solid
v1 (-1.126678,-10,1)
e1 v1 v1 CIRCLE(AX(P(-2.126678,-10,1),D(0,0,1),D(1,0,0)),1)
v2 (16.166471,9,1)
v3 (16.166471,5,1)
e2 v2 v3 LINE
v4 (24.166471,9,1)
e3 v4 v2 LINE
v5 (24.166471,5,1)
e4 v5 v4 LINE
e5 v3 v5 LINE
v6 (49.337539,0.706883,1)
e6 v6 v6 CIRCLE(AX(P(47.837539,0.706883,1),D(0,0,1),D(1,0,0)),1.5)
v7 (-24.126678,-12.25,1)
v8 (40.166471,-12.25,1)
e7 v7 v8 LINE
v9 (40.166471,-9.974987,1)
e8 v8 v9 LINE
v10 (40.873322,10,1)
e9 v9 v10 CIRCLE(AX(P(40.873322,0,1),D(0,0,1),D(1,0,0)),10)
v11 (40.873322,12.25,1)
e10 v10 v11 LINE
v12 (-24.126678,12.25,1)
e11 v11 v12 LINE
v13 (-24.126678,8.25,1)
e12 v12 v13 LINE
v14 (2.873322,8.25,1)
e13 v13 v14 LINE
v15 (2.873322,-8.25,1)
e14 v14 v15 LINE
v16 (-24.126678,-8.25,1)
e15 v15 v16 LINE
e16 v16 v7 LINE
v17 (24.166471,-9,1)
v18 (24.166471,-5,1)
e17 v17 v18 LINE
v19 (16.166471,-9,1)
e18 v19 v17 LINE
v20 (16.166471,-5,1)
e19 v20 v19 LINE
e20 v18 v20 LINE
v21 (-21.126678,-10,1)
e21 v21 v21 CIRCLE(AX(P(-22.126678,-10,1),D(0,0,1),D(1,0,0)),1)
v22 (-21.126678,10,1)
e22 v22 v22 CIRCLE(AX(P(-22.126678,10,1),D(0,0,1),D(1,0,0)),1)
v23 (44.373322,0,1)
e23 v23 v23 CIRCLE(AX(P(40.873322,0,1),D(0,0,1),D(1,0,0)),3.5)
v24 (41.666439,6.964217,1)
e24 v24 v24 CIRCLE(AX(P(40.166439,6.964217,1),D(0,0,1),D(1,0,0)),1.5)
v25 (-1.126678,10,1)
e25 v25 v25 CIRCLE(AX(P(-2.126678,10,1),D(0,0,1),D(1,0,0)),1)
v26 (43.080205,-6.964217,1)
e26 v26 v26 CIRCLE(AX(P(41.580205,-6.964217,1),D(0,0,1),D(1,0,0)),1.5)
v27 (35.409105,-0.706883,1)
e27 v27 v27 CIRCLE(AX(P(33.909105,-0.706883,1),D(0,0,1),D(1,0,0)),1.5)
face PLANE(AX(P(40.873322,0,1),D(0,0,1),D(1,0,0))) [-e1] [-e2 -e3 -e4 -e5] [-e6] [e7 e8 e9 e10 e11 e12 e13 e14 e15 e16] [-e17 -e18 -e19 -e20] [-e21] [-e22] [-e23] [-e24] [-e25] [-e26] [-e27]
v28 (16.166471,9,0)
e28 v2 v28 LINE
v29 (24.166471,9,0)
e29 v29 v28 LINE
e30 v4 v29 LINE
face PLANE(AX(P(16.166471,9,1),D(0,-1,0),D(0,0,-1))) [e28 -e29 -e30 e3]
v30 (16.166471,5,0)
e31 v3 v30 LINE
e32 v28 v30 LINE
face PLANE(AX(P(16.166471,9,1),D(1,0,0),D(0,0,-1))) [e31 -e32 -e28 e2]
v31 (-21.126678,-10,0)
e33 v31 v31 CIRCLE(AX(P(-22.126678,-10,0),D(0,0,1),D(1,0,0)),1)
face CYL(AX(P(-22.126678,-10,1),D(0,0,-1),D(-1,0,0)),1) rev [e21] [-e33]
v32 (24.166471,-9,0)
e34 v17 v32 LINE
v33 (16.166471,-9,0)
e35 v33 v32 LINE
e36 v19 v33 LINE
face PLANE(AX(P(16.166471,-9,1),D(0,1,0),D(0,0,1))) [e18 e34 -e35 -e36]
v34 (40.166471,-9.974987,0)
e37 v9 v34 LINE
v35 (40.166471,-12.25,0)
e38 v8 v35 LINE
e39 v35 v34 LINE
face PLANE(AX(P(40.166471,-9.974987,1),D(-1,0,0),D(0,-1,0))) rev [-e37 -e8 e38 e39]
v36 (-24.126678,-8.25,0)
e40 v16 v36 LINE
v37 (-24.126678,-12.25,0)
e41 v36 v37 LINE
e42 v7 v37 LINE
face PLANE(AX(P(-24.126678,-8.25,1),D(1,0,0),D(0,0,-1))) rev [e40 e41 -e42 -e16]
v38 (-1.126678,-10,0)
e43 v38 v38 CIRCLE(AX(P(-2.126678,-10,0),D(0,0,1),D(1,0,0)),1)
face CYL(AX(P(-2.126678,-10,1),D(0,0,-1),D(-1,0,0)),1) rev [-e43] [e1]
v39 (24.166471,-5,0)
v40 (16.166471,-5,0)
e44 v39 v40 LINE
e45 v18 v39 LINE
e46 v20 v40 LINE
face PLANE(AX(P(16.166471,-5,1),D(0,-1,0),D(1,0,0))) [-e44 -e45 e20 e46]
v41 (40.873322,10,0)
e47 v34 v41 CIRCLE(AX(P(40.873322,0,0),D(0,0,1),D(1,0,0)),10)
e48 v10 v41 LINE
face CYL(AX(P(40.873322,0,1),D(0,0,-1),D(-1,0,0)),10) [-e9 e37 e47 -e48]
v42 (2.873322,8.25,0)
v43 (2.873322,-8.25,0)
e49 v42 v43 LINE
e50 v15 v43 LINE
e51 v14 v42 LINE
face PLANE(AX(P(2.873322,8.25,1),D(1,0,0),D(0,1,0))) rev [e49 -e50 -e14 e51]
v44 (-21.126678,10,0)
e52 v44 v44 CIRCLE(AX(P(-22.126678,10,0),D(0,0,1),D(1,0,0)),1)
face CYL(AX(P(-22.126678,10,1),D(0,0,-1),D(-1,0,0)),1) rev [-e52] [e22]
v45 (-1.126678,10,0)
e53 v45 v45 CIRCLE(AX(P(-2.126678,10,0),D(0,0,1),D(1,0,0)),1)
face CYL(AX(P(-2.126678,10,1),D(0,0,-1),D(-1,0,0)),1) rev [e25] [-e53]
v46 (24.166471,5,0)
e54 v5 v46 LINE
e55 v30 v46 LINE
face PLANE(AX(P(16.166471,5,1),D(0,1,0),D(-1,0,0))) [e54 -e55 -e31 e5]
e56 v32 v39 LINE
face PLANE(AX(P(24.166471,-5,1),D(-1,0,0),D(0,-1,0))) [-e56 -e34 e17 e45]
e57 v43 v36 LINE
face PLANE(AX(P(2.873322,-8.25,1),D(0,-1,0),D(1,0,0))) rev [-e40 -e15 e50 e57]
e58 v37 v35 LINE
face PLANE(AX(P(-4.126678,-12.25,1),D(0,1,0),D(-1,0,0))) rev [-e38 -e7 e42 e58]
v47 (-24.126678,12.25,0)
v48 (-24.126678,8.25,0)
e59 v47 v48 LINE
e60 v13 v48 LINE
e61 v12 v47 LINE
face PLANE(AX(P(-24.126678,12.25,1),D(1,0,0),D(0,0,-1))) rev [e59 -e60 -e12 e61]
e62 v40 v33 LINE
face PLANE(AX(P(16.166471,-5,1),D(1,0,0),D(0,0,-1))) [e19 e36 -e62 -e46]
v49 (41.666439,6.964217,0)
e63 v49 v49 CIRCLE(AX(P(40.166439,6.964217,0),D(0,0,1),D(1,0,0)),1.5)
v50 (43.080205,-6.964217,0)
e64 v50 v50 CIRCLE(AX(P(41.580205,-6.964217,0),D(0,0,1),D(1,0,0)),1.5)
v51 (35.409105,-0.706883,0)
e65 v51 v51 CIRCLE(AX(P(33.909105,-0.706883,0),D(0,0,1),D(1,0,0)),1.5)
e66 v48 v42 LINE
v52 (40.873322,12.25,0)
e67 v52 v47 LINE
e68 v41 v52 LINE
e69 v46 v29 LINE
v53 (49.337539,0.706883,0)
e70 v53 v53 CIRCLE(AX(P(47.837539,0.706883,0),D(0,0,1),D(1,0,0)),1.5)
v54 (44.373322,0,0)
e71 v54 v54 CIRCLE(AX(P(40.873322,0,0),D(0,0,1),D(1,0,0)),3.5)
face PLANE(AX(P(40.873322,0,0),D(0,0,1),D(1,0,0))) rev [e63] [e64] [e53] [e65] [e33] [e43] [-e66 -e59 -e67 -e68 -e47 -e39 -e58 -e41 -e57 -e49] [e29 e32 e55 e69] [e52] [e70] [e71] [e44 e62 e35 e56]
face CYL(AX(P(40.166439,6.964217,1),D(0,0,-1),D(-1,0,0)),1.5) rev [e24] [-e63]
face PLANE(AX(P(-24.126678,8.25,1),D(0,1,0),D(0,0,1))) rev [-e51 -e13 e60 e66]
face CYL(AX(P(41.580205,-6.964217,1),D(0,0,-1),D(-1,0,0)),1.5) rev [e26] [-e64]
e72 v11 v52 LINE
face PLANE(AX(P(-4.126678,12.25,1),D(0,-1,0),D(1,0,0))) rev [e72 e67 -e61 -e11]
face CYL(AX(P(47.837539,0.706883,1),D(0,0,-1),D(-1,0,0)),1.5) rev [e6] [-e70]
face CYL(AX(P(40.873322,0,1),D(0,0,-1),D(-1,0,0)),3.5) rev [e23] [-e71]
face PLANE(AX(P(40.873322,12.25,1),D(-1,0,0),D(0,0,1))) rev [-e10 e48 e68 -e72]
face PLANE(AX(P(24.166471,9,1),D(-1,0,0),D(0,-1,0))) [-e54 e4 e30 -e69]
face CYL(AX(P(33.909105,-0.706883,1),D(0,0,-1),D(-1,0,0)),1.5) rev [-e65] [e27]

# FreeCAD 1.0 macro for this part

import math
import FreeCAD as App
import Part
import Sketcher

V = App.Vector

doc = App.newDocument("Part")
body = doc.addObject("PartDesign::Body", "Body")

sketch1 = body.newObject("Sketcher::SketchObject", "Sketch")
sketch1.AttachmentSupport = (doc.getObject("XY_Plane"), [""])
sketch1.MapMode = "FlatFace"
sketch1.addGeometry([
    Part.LineSegment(V(40.873322, 10, 0), V(40.873322, 12.25, 0)),
    Part.LineSegment(V(40.873322, 12.25, 0), V(-24.126678, 12.25, 0)),
    Part.LineSegment(V(-24.126678, 12.25, 0), V(-24.126678, 8.25, 0)),
    Part.LineSegment(V(-24.126678, 8.25, 0), V(2.873322, 8.25, 0)),
    Part.LineSegment(V(2.873322, 8.25, 0), V(2.873322, -8.25, 0)),
    Part.LineSegment(V(2.873322, -8.25, 0), V(-24.126678, -8.25, 0)),
    Part.LineSegment(V(-24.126678, -8.25, 0), V(-24.126678, -12.25, 0)),
    Part.LineSegment(V(-24.126678, -12.25, 0), V(40.166471, -12.25, 0)),
    Part.LineSegment(V(40.166471, -12.25, 0), V(40.166471, -9.974987, 0)),
    Part.ArcOfCircle(Part.Circle(V(40.873322, 0, 0), V(0, 0, 1), 10), math.radians(-94.053337), math.radians(90)),
    Part.Circle(V(41.580205, -6.964217, 0), V(0, 0, 1), 1.5),
    Part.LineSegment(V(16.166471, -9, 0), V(16.166471, -5, 0)),
    Part.LineSegment(V(16.166471, -5, 0), V(24.166471, -5, 0)),
    Part.LineSegment(V(24.166471, -5, 0), V(24.166471, -9, 0)),
    Part.LineSegment(V(24.166471, -9, 0), V(16.166471, -9, 0)),
    Part.Circle(V(33.909105, -0.706883, 0), V(0, 0, 1), 1.5),
    Part.Circle(V(-2.126678, -10, 0), V(0, 0, 1), 1),
    Part.Circle(V(-22.126678, -10, 0), V(0, 0, 1), 1),
    Part.Circle(V(47.837539, 0.706883, 0), V(0, 0, 1), 1.5),
    Part.Circle(V(40.873322, 0, 0), V(0, 0, 1), 3.5),
    Part.Circle(V(40.166439, 6.964217, 0), V(0, 0, 1), 1.5),
    Part.LineSegment(V(16.166471, 5, 0), V(16.166471, 9, 0)),
    Part.LineSegment(V(16.166471, 9, 0), V(24.166471, 9, 0)),
    Part.LineSegment(V(24.166471, 9, 0), V(24.166471, 5, 0)),
    Part.LineSegment(V(24.166471, 5, 0), V(16.166471, 5, 0)),
    Part.Circle(V(-2.126678, 10, 0), V(0, 0, 1), 1),
    Part.Circle(V(-22.126678, 10, 0), V(0, 0, 1), 1),
], False)
sketch1.addConstraint([
    Sketcher.Constraint("Coincident", 0, 2, 1, 1),
    Sketcher.Constraint("Coincident", 1, 2, 2, 1),
    Sketcher.Constraint("Coincident", 2, 2, 3, 1),
    Sketcher.Constraint("Coincident", 3, 2, 4, 1),
    Sketcher.Constraint("Coincident", 4, 2, 5, 1),
    Sketcher.Constraint("Coincident", 5, 2, 6, 1),
    Sketcher.Constraint("Coincident", 6, 2, 7, 1),
    Sketcher.Constraint("Coincident", 7, 2, 8, 1),
    Sketcher.Constraint("Coincident", 8, 2, 9, 1),
    Sketcher.Constraint("Coincident", 9, 2, 0, 1),
    Sketcher.Constraint("Coincident", 11, 2, 12, 1),
    Sketcher.Constraint("Coincident", 12, 2, 13, 1),
    Sketcher.Constraint("Coincident", 13, 2, 14, 1),
    Sketcher.Constraint("Coincident", 14, 2, 11, 1),
    Sketcher.Constraint("Coincident", 21, 2, 22, 1),
    Sketcher.Constraint("Coincident", 22, 2, 23, 1),
    Sketcher.Constraint("Coincident", 23, 2, 24, 1),
    Sketcher.Constraint("Coincident", 24, 2, 21, 1),
    Sketcher.Constraint("Vertical", 0),
    Sketcher.Constraint("Horizontal", 1),
    Sketcher.Constraint("Vertical", 2),
    Sketcher.Constraint("Horizontal", 3),
    Sketcher.Constraint("Vertical", 4),
    Sketcher.Constraint("Horizontal", 5),
    Sketcher.Constraint("Vertical", 6),
    Sketcher.Constraint("Horizontal", 7),
    Sketcher.Constraint("Vertical", 8),
    Sketcher.Constraint("Vertical", 11),
    Sketcher.Constraint("Horizontal", 12),
    Sketcher.Constraint("Vertical", 13),
    Sketcher.Constraint("Horizontal", 14),
    Sketcher.Constraint("Vertical", 21),
    Sketcher.Constraint("Horizontal", 22),
    Sketcher.Constraint("Vertical", 23),
    Sketcher.Constraint("Horizontal", 24),
    Sketcher.Constraint("Coincident", 19, 3, 9, 3),
    Sketcher.Constraint("Equal", 10, 15),
    Sketcher.Constraint("Equal", 16, 17),
    Sketcher.Constraint("Equal", 15, 18),
    Sketcher.Constraint("Equal", 18, 20),
    Sketcher.Constraint("Equal", 17, 25),
    Sketcher.Constraint("Equal", 25, 26),
    Sketcher.Constraint("Symmetric", 16, 3, 25, 3, -1),
    Sketcher.Constraint("Symmetric", 17, 3, 26, 3, -1),
    Sketcher.Constraint("Symmetric", 2, 2, 5, 2, -1),
    Sketcher.Constraint("Symmetric", 14, 2, 21, 2, -1),
    Sketcher.Constraint("Symmetric", 12, 2, 23, 2, -1),
    Sketcher.Constraint("PointOnObject", 9, 3, -1),
    Sketcher.Constraint("Horizontal", 16, 3, 17, 3),
    Sketcher.Constraint("Horizontal", 26, 3, 9, 2),
    Sketcher.Constraint("Vertical", 19, 3, 0, 2),
    Sketcher.Constraint("Equal", 2, 6),
    Sketcher.Constraint("Equal", 6, 11),
    Sketcher.Constraint("Diameter", 10, 3.0),
    Sketcher.Constraint("Diameter", 16, 2.0),
    Sketcher.Constraint("Diameter", 19, 7.0),
    Sketcher.Constraint("Radius", 9, 10.0),
    Sketcher.Constraint("DistanceX", 1, 2, 1, 1, 65.0),
    Sketcher.Constraint("DistanceX", 3, 1, 3, 2, 27.0),
    Sketcher.Constraint("DistanceX", 12, 1, 12, 2, 8.0),
    Sketcher.Constraint("DistanceY", 2, 2, 2, 1, 4.0),
    Sketcher.Constraint("DistanceY", 4, 2, 4, 1, 16.5),
    Sketcher.Constraint("DistanceY", 11, 2, -1, 1, 5.0),
    Sketcher.Constraint("DistanceX", 16, 3, 9, 3, 43.0),
    Sketcher.Constraint("DistanceX", 17, 3, 16, 3, 20.0),
    Sketcher.Constraint("DistanceX", 12, 2, 8, 2, 16.0),
    Sketcher.Constraint("DistanceX", 7, 1, 7, 2, 64.293149),
    Sketcher.Constraint("DistanceX", 15, 3, 10, 3, 7.6711),
    Sketcher.Constraint("DistanceY", 10, 3, 18, 3, 7.6711),
    Sketcher.Constraint("DistanceY", 15, 3, 20, 3, 7.6711),
    Sketcher.Constraint("DistanceX", 20, 3, 18, 3, 7.6711),
    Sketcher.Constraint("DistanceX", -1, 1, 9, 3, 40.873322),
    Sketcher.Constraint("DistanceX", -1, 1, 18, 3, 47.837539),
    Sketcher.Constraint("DistanceY", 8, 2, 10, 3, 3.01077),
    Sketcher.Constraint("DistanceX", -1, 1, 10, 3, 41.580205),
    Sketcher.Constraint("DistanceY", 15, 3, -1, 1, 0.706883),
])
pad1 = body.newObject("PartDesign::Pad", "Pad")
pad1.Profile = sketch1
pad1.Length = 1

doc.recompute()
